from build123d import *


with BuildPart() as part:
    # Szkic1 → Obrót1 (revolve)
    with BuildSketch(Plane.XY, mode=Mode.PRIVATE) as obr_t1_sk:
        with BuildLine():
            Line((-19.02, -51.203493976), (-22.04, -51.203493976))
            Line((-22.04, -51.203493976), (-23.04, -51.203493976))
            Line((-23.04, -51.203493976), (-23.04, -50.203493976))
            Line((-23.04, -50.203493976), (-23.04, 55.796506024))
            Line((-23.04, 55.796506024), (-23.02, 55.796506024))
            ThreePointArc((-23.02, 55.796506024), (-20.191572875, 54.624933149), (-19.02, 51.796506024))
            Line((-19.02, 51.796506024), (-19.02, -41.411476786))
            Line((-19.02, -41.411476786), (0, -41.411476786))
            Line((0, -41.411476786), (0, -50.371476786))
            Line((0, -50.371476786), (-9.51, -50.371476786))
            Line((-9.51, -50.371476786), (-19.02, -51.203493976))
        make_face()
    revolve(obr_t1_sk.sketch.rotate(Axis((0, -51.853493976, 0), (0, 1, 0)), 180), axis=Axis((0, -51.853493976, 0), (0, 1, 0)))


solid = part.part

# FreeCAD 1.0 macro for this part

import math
import FreeCAD as App
import Part
import Sketcher
from FreeCAD import Vector
Q = App.Units.Quantity

doc = App.newDocument("Part")
body = doc.addObject("PartDesign::Body", "Body")

# Sketch on XY plane
sketch1 = body.newObject("Sketcher::SketchObject", "Sketch")
sketch1.AttachmentSupport = (doc.getObject("XY_Plane"), [""])
sketch1.MapMode = "FlatFace"
sketch1.addGeometry([
    Part.LineSegment(Vector(-23.04, -51.203494, 0), Vector(-19.02, -51.203494, 0)),  # 0
    Part.LineSegment(Vector(-19.02, -51.203494, 0), Vector(-9.51, -50.371477, 0)),  # 1
    Part.LineSegment(Vector(-9.51, -50.371477, 0), Vector(0, -50.371477, 0)),  # 2
    Part.LineSegment(Vector(0, -50.371477, 0), Vector(0, -41.411477, 0)),  # 3
    Part.LineSegment(Vector(0, -41.411477, 0), Vector(-19.02, -41.411477, 0)),  # 4
    Part.LineSegment(Vector(-19.02, -41.411477, 0), Vector(-19.02, 51.796506, 0)),  # 5
    Part.ArcOfCircle(Part.Circle(Vector(-23.02, 51.796506, 0), Vector(0, 0, 1), 4), math.radians(0), math.radians(90)),  # 6
    Part.LineSegment(Vector(-23.02, 55.796506, 0), Vector(-23.04, 55.796506, 0)),  # 7
    Part.LineSegment(Vector(-23.04, 55.796506, 0), Vector(-23.04, -51.203494, 0)),  # 8
], False)
sketch1.addConstraint([
    Sketcher.Constraint("Coincident", 0, 2, 1, 1),
    Sketcher.Constraint("Coincident", 1, 2, 2, 1),
    Sketcher.Constraint("Coincident", 2, 2, 3, 1),
    Sketcher.Constraint("Coincident", 3, 2, 4, 1),
    Sketcher.Constraint("Coincident", 4, 2, 5, 1),
    Sketcher.Constraint("Tangent", 5, 2, 6, 1),
    Sketcher.Constraint("Tangent", 6, 2, 7, 1),
    Sketcher.Constraint("Coincident", 7, 2, 8, 1),
    Sketcher.Constraint("Coincident", 8, 2, 0, 1),
    Sketcher.Constraint("Horizontal", 0),
    Sketcher.Constraint("Horizontal", 2),
    Sketcher.Constraint("Vertical", 3),
    Sketcher.Constraint("Horizontal", 4),
    Sketcher.Constraint("Vertical", 5),
    Sketcher.Constraint("Horizontal", 7),
    Sketcher.Constraint("Vertical", 8),
    Sketcher.Constraint("PointOnObject", 2, 2, -2),
    Sketcher.Constraint("Vertical", 0, 2, 4, 2),
    Sketcher.Constraint("Radius", 6, Q("4 mm")),
    Sketcher.Constraint("DistanceY", 8, 2, 8, 1, Q("107 mm")),
    Sketcher.Constraint("Angle", 1, Q("5 deg")),
    Sketcher.Constraint("DistanceX", 0, 1, 0, 2, Q("4.02 mm")),
    Sketcher.Constraint("DistanceX", 2, 1, 2, 2, Q("9.51 mm")),
    Sketcher.Constraint("DistanceX", 4, 2, 4, 1, Q("19.02 mm")),
    Sketcher.Constraint("DistanceY", 3, 1, 3, 2, Q("8.96 mm")),
    Sketcher.Constraint("DistanceY", -1, 1, 6, 3, Q("51.796506 mm")),
])
revolution = body.newObject("PartDesign::Revolution", "Revolution")
revolution.Profile = sketch1
revolution.ReferenceAxis = (sketch1, ["V_Axis"])
revolution.Angle = 360

doc.recompute()
